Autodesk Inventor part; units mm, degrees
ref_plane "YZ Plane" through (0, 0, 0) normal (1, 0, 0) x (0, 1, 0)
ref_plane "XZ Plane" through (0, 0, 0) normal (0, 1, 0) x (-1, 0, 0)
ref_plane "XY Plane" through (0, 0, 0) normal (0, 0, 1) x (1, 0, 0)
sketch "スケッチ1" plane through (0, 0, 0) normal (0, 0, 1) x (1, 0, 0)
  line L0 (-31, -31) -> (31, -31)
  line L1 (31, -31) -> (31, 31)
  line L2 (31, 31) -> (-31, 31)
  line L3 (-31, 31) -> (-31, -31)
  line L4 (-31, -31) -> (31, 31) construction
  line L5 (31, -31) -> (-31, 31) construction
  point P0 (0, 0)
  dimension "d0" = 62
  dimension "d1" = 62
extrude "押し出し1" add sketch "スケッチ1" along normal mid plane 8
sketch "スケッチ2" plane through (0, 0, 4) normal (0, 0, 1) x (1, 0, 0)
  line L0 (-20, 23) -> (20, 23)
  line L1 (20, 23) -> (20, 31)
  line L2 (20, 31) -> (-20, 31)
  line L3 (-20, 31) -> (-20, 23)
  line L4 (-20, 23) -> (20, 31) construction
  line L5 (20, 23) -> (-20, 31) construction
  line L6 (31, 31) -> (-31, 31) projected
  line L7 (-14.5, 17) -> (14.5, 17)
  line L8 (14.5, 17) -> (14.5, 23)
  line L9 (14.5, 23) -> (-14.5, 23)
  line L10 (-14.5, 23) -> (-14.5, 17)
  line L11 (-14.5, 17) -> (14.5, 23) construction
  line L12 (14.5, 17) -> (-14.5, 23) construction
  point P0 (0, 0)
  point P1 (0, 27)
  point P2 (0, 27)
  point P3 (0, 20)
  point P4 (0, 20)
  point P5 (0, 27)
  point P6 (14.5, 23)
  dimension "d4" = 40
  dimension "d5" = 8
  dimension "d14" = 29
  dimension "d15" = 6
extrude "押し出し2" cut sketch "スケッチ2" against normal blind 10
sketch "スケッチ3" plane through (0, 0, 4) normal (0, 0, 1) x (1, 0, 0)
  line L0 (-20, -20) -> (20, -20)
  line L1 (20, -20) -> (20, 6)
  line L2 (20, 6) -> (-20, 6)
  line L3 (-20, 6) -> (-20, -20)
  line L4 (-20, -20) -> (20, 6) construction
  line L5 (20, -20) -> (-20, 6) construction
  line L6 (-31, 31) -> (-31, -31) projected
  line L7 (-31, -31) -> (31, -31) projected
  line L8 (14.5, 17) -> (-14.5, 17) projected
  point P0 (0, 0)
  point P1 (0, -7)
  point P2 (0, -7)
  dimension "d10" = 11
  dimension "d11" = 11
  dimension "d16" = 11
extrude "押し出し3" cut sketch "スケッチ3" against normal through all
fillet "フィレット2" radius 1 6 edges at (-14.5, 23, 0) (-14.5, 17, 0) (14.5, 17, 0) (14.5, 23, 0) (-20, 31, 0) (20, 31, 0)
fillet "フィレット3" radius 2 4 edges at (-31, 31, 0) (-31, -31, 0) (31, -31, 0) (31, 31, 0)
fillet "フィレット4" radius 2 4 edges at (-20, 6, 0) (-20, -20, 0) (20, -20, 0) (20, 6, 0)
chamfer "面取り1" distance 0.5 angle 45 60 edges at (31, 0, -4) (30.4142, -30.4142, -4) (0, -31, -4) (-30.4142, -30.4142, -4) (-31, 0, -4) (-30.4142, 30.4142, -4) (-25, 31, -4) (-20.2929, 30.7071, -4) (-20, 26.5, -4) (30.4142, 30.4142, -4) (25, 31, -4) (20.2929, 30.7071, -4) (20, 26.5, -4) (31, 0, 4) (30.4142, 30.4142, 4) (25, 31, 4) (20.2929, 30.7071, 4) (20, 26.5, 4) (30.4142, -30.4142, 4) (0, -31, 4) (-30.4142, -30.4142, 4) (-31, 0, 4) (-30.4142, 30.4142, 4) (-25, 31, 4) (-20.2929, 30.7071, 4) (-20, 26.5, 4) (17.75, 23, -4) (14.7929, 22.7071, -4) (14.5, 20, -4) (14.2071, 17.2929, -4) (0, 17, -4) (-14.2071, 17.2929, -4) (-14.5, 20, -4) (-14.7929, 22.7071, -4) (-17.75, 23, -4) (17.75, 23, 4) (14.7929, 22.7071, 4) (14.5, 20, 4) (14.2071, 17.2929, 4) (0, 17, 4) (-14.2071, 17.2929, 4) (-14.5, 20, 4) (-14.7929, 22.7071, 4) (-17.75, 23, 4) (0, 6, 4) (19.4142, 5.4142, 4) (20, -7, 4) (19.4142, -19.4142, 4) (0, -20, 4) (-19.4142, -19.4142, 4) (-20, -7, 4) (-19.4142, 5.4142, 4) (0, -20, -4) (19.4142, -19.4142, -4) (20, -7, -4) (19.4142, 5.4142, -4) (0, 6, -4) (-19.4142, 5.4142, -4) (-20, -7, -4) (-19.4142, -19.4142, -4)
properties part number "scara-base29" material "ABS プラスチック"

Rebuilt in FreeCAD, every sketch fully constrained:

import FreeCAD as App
import Part
import Sketcher

V = App.Vector


def edges_at(feature, points):
    """Names of the edges that pass closest to the given points."""
    edges = feature.Shape.Edges
    near = lambda p: min(range(len(edges)), key=lambda i: edges[i].distToShape(Part.Vertex(*p))[0])
    return sorted({f"Edge{near(p) + 1}" for p in points})

doc = App.newDocument("Part")
body = doc.addObject("PartDesign::Body", "Body")

sketch1 = body.newObject("Sketcher::SketchObject", "Sketch")
sketch1.AttachmentSupport = (doc.getObject("XY_Plane"), [""])
sketch1.MapMode = "FlatFace"
sketch1.addGeometry([
    Part.LineSegment(V(-31, 31, 0), V(-31, -31, 0)),
    Part.LineSegment(V(-31, -31, 0), V(31, -31, 0)),
    Part.LineSegment(V(31, -31, 0), V(31, 31, 0)),
    Part.LineSegment(V(31, 31, 0), V(-31, 31, 0)),
], False)
sketch1.addConstraint([
    Sketcher.Constraint("Coincident", 0, 2, 1, 1),
    Sketcher.Constraint("Coincident", 1, 2, 2, 1),
    Sketcher.Constraint("Coincident", 2, 2, 3, 1),
    Sketcher.Constraint("Coincident", 3, 2, 0, 1),
    Sketcher.Constraint("Vertical", 0),
    Sketcher.Constraint("Horizontal", 1),
    Sketcher.Constraint("Vertical", 2),
    Sketcher.Constraint("Horizontal", 3),
    Sketcher.Constraint("Symmetric", 0, 2, 2, 2, -1, 1),
    Sketcher.Constraint("Equal", 3, 0),
    Sketcher.Constraint("DistanceX", 1, 1, 1, 2, 62.0),
])
pad1 = body.newObject("PartDesign::Pad", "Pad")
pad1.Profile = sketch1
pad1.Length = 8
pad1.Midplane = True

sketch2 = body.newObject("Sketcher::SketchObject", "Sketch001")
sketch2.AttachmentSupport = (doc.getObject("XY_Plane"), [""])
sketch2.MapMode = "FlatFace"
sketch2.AttachmentOffset = App.Placement(V(0, 0, 4), App.Rotation())
sketch2.addGeometry([
    Part.LineSegment(V(-20, 31, 0), V(-20, 23, 0)),
    Part.LineSegment(V(-20, 23, 0), V(-14.5, 23, 0)),
    Part.LineSegment(V(-14.5, 23, 0), V(-14.5, 17, 0)),
    Part.LineSegment(V(-14.5, 17, 0), V(14.5, 17, 0)),
    Part.LineSegment(V(14.5, 17, 0), V(14.5, 23, 0)),
    Part.LineSegment(V(14.5, 23, 0), V(20, 23, 0)),
    Part.LineSegment(V(20, 23, 0), V(20, 31, 0)),
    Part.LineSegment(V(20, 31, 0), V(-20, 31, 0)),
], False)
sketch2.addConstraint([
    Sketcher.Constraint("Coincident", 0, 2, 1, 1),
    Sketcher.Constraint("Coincident", 1, 2, 2, 1),
    Sketcher.Constraint("Coincident", 2, 2, 3, 1),
    Sketcher.Constraint("Coincident", 3, 2, 4, 1),
    Sketcher.Constraint("Coincident", 4, 2, 5, 1),
    Sketcher.Constraint("Coincident", 5, 2, 6, 1),
    Sketcher.Constraint("Coincident", 6, 2, 7, 1),
    Sketcher.Constraint("Coincident", 7, 2, 0, 1),
    Sketcher.Constraint("Vertical", 0),
    Sketcher.Constraint("Horizontal", 1),
    Sketcher.Constraint("Vertical", 2),
    Sketcher.Constraint("Horizontal", 3),
    Sketcher.Constraint("Vertical", 4),
    Sketcher.Constraint("Horizontal", 5),
    Sketcher.Constraint("Vertical", 6),
    Sketcher.Constraint("Horizontal", 7),
    Sketcher.Constraint("Symmetric", 1, 2, 4, 2, -2),
    Sketcher.Constraint("Equal", 1, 5),
    Sketcher.Constraint("DistanceX", 3, 1, 3, 2, 29.0),
    Sketcher.Constraint("DistanceX", 7, 2, 7, 1, 40.0),
    Sketcher.Constraint("DistanceY", 0, 2, 0, 1, 8.0),
    Sketcher.Constraint("DistanceY", 2, 2, 2, 1, 6.0),
    Sketcher.Constraint("DistanceY", -1, 1, 0, 2, 23.0),
])
pocket1 = body.newObject("PartDesign::Pocket", "Pocket")
pocket1.Profile = sketch2
pocket1.Length = 10

sketch3 = body.newObject("Sketcher::SketchObject", "Sketch002")
sketch3.AttachmentSupport = (doc.getObject("XY_Plane"), [""])
sketch3.MapMode = "FlatFace"
sketch3.AttachmentOffset = App.Placement(V(0, 0, 4), App.Rotation())
sketch3.addGeometry([
    Part.LineSegment(V(-20, 6, 0), V(-20, -20, 0)),
    Part.LineSegment(V(-20, -20, 0), V(20, -20, 0)),
    Part.LineSegment(V(20, -20, 0), V(20, 6, 0)),
    Part.LineSegment(V(20, 6, 0), V(-20, 6, 0)),
], False)
sketch3.addConstraint([
    Sketcher.Constraint("Coincident", 0, 2, 1, 1),
    Sketcher.Constraint("Coincident", 1, 2, 2, 1),
    Sketcher.Constraint("Coincident", 2, 2, 3, 1),
    Sketcher.Constraint("Coincident", 3, 2, 0, 1),
    Sketcher.Constraint("Vertical", 0),
    Sketcher.Constraint("Horizontal", 1),
    Sketcher.Constraint("Vertical", 2),
    Sketcher.Constraint("Horizontal", 3),
    Sketcher.Constraint("DistanceX", 1, 1, 1, 2, 40.0),
    Sketcher.Constraint("DistanceY", 0, 2, 0, 1, 26.0),
    Sketcher.Constraint("DistanceX", 0, 2, -1, 1, 20.0),
    Sketcher.Constraint("DistanceY", 0, 2, -1, 1, 20.0),
])
pocket2 = body.newObject("PartDesign::Pocket", "Pocket001")
pocket2.Profile = sketch3
pocket2.Type = "ThroughAll"
doc.recompute()

fillet = body.newObject("PartDesign::Fillet", "Fillet")
fillet.Base = (pocket2, edges_at(pocket2, [
    (-14.5, 23, 0),
    (-14.5, 17, 0),
    (14.5, 17, 0),
    (14.5, 23, 0),
    (-20, 31, 0),
    (20, 31, 0),
]))
fillet.Radius = 1
doc.recompute()

fillet2 = body.newObject("PartDesign::Fillet", "Fillet001")
fillet2.Base = (fillet, edges_at(fillet, [
    (-31, 31, 0),
    (-31, -31, 0),
    (31, -31, 0),
    (31, 31, 0),
]))
fillet2.Radius = 2
doc.recompute()

fillet3 = body.newObject("PartDesign::Fillet", "Fillet002")
fillet3.Base = (fillet2, edges_at(fillet2, [
    (-20, 6, 0),
    (-20, -20, 0),
    (20, -20, 0),
    (20, 6, 0),
]))
fillet3.Radius = 2
doc.recompute()

chamfer = body.newObject("PartDesign::Chamfer", "Chamfer")
chamfer.Base = (fillet3, edges_at(fillet3, [
    (31, 0, -4),
    (30.414, -30.414, -4),
    (0, -31, -4),
    (-30.414, -30.414, -4),
    (-31, 0, -4),
    (-30.414, 30.414, -4),
    (-25, 31, -4),
    (-20.293, 30.707, -4),
    (-20, 26.5, -4),
    (30.414, 30.414, -4),
    (25, 31, -4),
    (20.293, 30.707, -4),
    (20, 26.5, -4),
    (31, 0, 4),
    (30.414, 30.414, 4),
    (25, 31, 4),
    (20.293, 30.707, 4),
    (20, 26.5, 4),
    (30.414, -30.414, 4),
    (0, -31, 4),
    (-30.414, -30.414, 4),
    (-31, 0, 4),
    (-30.414, 30.414, 4),
    (-25, 31, 4),
    (-20.293, 30.707, 4),
    (-20, 26.5, 4),
    (17.75, 23, -4),
    (14.793, 22.707, -4),
    (14.5, 20, -4),
    (14.207, 17.293, -4),
    (0, 17, -4),
    (-14.207, 17.293, -4),
    (-14.5, 20, -4),
    (-14.793, 22.707, -4),
    (-17.75, 23, -4),
    (17.75, 23, 4),
    (14.793, 22.707, 4),
    (14.5, 20, 4),
    (14.207, 17.293, 4),
    (0, 17, 4),
    (-14.207, 17.293, 4),
    (-14.5, 20, 4),
    (-14.793, 22.707, 4),
    (-17.75, 23, 4),
    (0, 6, 4),
    (19.414, 5.414, 4),
    (20, -7, 4),
    (19.414, -19.414, 4),
    (0, -20, 4),
    (-19.414, -19.414, 4),
    (-20, -7, 4),
    (-19.414, 5.414, 4),
    (0, -20, -4),
    (19.414, -19.414, -4),
    (20, -7, -4),
    (19.414, 5.414, -4),
    (0, 6, -4),
    (-19.414, 5.414, -4),
    (-20, -7, -4),
    (-19.414, -19.414, -4),
]))
chamfer.Size = 0.5

doc.recompute()
